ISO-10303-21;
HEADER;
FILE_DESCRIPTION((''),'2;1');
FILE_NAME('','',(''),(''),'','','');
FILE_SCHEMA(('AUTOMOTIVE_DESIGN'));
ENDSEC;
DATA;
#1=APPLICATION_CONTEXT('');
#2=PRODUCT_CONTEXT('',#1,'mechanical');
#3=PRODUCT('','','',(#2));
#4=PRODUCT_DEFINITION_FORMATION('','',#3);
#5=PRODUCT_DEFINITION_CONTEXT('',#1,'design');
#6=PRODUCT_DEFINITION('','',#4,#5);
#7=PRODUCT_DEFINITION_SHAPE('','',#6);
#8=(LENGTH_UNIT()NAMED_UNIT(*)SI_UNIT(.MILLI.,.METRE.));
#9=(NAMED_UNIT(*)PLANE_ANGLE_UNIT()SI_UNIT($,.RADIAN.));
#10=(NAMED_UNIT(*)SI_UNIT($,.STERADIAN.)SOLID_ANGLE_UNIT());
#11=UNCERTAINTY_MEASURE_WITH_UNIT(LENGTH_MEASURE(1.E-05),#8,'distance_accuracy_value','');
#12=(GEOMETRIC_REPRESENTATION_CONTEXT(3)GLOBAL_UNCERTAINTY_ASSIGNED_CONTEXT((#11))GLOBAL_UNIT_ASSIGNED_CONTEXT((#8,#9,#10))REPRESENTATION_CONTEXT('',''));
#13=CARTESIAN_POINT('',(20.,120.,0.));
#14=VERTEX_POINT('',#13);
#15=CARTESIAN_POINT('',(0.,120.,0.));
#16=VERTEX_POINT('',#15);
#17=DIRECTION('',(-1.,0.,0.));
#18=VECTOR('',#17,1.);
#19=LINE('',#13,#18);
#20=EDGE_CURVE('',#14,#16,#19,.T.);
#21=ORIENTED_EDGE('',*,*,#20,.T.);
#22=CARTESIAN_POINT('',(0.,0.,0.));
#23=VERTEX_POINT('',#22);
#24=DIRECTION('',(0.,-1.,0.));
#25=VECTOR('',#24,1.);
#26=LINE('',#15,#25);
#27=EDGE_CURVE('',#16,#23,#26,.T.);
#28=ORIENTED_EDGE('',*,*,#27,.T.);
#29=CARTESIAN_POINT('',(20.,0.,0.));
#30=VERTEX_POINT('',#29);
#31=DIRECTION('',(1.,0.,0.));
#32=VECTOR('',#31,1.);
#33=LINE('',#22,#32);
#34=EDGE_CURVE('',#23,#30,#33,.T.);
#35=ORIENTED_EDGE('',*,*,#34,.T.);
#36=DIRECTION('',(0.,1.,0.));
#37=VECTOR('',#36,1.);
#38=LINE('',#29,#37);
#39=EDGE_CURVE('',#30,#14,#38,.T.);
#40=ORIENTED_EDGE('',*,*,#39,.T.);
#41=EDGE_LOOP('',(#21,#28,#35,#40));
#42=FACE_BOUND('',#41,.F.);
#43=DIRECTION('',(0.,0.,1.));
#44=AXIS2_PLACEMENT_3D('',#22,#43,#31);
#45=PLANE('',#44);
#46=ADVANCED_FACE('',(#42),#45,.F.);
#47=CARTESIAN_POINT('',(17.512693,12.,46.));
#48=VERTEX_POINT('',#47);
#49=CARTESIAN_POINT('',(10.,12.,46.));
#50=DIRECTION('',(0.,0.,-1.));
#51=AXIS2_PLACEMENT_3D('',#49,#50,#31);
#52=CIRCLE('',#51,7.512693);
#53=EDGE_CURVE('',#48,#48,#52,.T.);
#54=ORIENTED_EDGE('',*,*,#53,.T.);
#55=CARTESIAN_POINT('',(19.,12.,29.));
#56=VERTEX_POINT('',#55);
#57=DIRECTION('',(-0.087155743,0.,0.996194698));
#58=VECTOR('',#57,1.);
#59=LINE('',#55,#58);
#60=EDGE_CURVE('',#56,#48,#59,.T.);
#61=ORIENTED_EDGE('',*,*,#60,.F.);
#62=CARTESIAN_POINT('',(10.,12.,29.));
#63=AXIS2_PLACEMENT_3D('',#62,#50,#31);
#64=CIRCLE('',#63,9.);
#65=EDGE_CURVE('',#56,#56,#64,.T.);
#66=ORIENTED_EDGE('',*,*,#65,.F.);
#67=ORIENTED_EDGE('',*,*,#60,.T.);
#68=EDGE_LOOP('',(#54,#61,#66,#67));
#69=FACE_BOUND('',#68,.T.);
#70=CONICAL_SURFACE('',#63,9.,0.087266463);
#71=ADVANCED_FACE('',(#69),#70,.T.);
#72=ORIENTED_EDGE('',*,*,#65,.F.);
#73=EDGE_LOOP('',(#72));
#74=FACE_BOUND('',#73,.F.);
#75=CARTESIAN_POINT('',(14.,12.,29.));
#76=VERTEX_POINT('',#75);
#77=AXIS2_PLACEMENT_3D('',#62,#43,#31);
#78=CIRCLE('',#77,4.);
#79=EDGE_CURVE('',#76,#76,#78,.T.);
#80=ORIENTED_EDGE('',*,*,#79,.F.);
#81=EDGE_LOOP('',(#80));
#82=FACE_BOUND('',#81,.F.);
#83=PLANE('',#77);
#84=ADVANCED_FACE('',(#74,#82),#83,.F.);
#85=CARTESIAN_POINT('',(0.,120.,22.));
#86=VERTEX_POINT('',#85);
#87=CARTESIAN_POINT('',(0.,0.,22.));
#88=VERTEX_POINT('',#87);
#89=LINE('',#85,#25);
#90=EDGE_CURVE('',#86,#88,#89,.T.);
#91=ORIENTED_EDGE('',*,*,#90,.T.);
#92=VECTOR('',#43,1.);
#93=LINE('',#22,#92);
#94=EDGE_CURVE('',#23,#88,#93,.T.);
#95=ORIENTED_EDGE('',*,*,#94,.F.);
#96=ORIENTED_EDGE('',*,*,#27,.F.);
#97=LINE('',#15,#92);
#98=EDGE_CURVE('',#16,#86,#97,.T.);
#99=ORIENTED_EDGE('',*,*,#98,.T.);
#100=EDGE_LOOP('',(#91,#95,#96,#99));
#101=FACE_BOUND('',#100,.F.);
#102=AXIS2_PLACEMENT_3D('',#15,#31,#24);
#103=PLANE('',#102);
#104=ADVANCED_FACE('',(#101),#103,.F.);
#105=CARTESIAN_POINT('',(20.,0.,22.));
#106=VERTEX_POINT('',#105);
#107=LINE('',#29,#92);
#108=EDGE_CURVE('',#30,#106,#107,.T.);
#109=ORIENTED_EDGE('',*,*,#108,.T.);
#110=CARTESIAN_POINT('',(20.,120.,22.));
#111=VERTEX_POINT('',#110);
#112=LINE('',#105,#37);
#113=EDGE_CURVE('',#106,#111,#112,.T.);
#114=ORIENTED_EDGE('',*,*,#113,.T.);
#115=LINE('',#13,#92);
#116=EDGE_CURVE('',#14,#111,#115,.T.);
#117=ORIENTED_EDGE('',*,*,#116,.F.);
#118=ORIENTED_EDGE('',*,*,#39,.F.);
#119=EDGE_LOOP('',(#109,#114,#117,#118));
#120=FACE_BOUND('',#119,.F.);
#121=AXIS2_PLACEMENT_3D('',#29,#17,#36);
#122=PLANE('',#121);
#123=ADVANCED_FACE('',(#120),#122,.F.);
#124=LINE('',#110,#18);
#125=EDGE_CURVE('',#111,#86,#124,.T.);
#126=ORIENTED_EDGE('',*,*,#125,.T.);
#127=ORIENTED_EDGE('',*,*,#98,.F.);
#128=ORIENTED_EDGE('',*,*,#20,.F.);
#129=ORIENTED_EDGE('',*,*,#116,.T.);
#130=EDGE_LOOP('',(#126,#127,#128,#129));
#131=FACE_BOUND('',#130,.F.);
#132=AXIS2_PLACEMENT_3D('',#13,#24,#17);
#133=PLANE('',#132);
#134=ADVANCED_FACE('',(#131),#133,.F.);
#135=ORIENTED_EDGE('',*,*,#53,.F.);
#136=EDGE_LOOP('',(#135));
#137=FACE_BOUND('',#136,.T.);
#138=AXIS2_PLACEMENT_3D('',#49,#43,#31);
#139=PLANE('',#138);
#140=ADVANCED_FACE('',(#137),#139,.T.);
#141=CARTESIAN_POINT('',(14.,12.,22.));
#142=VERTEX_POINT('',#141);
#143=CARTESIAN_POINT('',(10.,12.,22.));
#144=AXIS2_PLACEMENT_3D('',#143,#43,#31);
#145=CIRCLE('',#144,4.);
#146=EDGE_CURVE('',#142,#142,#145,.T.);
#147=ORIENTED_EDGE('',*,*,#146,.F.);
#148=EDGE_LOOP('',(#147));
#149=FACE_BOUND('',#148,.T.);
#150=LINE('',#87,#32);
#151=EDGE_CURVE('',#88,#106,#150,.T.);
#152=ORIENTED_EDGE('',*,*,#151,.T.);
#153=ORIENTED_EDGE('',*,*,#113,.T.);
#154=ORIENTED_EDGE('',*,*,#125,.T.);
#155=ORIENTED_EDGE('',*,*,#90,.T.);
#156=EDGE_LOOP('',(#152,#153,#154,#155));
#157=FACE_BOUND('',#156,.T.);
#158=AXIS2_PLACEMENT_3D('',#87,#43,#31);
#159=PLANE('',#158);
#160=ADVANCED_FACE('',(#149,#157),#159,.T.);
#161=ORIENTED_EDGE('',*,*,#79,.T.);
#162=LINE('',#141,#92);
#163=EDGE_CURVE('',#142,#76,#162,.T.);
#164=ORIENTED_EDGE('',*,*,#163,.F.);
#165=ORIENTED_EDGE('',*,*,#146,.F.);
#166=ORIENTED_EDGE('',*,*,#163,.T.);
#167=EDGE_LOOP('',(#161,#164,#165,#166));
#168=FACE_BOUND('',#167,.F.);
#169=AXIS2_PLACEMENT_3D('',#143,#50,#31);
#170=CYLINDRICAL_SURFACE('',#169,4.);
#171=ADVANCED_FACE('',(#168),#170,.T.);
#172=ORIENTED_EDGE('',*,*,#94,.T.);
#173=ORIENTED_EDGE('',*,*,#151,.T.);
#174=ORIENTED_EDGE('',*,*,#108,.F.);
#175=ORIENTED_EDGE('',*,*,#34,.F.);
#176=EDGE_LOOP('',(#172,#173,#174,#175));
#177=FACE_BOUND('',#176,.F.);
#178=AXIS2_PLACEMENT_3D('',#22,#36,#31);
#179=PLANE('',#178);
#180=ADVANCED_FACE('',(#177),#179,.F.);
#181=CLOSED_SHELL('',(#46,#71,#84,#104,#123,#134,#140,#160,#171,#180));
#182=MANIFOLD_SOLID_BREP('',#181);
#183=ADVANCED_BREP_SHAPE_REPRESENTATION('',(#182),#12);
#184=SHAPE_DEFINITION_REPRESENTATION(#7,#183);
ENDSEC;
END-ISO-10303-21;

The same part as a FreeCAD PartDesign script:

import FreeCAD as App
import Part
import Sketcher

doc = App.newDocument("Part")
body = doc.addObject("PartDesign::Body", "Body")

# Sketch on XY plane
sketch1 = body.newObject("Sketcher::SketchObject", "Sketch")
sketch1.AttachmentSupport = (doc.getObject("XY_Plane"), [""])
sketch1.MapMode = "FlatFace"
sketch1.addGeometry([
    Part.LineSegment(App.Vector(0, 120, 0), App.Vector(0, 0, 0)),
    Part.LineSegment(App.Vector(0, 0, 0), App.Vector(20, 0, 0)),
    Part.LineSegment(App.Vector(20, 0, 0), App.Vector(20, 120, 0)),
    Part.LineSegment(App.Vector(20, 120, 0), App.Vector(0, 120, 0)),
], False)
sketch1.addConstraint([
    Sketcher.Constraint("Coincident", 0, 2, 1, 1),
    Sketcher.Constraint("Coincident", 1, 2, 2, 1),
    Sketcher.Constraint("Coincident", 2, 2, 3, 1),
    Sketcher.Constraint("Coincident", 3, 2, 0, 1),
    Sketcher.Constraint("Vertical", 0),
    Sketcher.Constraint("Horizontal", 1),
    Sketcher.Constraint("Vertical", 2),
    Sketcher.Constraint("Horizontal", 3),
    Sketcher.Constraint("Coincident", 0, 2, -1, 1),
    Sketcher.Constraint("DistanceX", 1, 1, 1, 2, 20.0),
    Sketcher.Constraint("DistanceY", 0, 2, 0, 1, 120.0),
])
pad1 = body.newObject("PartDesign::Pad", "Pad")
pad1.Profile = sketch1
pad1.Length = 22

# Sketch on XY plane
sketch2 = body.newObject("Sketcher::SketchObject", "Sketch001")
sketch2.AttachmentSupport = (doc.getObject("XY_Plane"), [""])
sketch2.MapMode = "FlatFace"
sketch2.AttachmentOffset = App.Placement(App.Vector(0, 0, 22), App.Rotation())
sketch2.addGeometry(Part.Circle(App.Vector(10, 12, 0), App.Vector(0, 0, 1), 4), False)
sketch2.addConstraint([
    Sketcher.Constraint("Diameter", 0, 8.0),
    Sketcher.Constraint("DistanceY", -1, 1, 0, 3, 12.0),
    Sketcher.Constraint("DistanceX", -1, 1, 0, 3, 10.0),
])
pad2 = body.newObject("PartDesign::Pad", "Pad001")
pad2.Profile = sketch2
pad2.Length = 7

# Sketch on XY plane
sketch3 = body.newObject("Sketcher::SketchObject", "Sketch002")
sketch3.AttachmentSupport = (doc.getObject("XY_Plane"), [""])
sketch3.MapMode = "FlatFace"
sketch3.AttachmentOffset = App.Placement(App.Vector(0, 0, 29), App.Rotation())
sketch3.addGeometry(Part.Circle(App.Vector(10, 12, 0), App.Vector(0, 0, 1), 9), False)
sketch3.addConstraint([
    Sketcher.Constraint("Diameter", 0, 18.0),
    Sketcher.Constraint("DistanceX", -1, 1, 0, 3, 10.0),
    Sketcher.Constraint("DistanceY", -1, 1, 0, 3, 12.0),
])
pad3 = body.newObject("PartDesign::Pad", "Pad002")
pad3.Profile = sketch3
pad3.Length = 17
pad3.TaperAngle = -5

doc.recompute()
